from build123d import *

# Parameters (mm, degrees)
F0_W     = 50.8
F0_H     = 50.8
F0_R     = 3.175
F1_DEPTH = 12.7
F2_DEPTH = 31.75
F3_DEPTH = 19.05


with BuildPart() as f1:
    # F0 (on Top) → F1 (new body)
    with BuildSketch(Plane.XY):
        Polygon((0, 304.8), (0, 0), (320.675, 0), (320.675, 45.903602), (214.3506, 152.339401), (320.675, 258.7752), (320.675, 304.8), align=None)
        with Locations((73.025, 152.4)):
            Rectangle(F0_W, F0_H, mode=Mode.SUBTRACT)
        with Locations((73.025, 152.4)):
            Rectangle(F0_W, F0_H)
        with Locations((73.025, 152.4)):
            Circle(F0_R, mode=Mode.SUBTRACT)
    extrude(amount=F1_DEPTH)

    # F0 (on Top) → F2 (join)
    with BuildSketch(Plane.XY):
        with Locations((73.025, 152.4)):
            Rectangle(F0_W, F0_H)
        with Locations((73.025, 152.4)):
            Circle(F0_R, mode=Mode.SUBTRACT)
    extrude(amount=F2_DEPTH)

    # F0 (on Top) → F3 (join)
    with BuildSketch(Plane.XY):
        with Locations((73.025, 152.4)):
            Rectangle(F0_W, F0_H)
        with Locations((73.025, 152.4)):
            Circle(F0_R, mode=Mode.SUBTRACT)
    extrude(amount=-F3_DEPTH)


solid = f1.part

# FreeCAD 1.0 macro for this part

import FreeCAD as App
import Part
import Sketcher
from FreeCAD import Vector
Q = App.Units.Quantity

doc = App.newDocument("Part")
params = doc.addObject("Spreadsheet::Sheet", "Params")
for row, (alias, value) in enumerate([
    ("sketch1_diameter", "0.25 in"),
    ("sketch1_height", "12 in"),
    ("sketch1_width", "12.625 in"),
    ("sketch1_height2", "1.812 in"),
    ("sketch1_length", "5.923 in"),
    ("pad1_length", "0.5 in"),
    ("sketch2_diameter", "0.25 in"),
    ("sketch2_width", "2 in"),
    ("pad2_length", "1.25 in"),
    ("sketch3_diameter", "0.25 in"),
    ("sketch3_width", "2 in"),
    ("pad3_length", "0.75 in"),
], start=1):
    params.set(f"A{row}", alias)
    params.set(f"B{row}", "=" + value)
    params.setAlias(f"B{row}", alias)

body = doc.addObject("PartDesign::Body", "Body")

# Sketch on XY plane
sketch1 = body.newObject("Sketcher::SketchObject", "Sketch")
sketch1.AttachmentSupport = (doc.getObject("XY_Plane"), [""])
sketch1.MapMode = "FlatFace"
sketch1.addGeometry([
    Part.LineSegment(Vector(0, 304.8, 0), Vector(0, 0, 0)),  # 0
    Part.LineSegment(Vector(0, 0, 0), Vector(320.675, 0, 0)),  # 1
    Part.LineSegment(Vector(320.675, 0, 0), Vector(320.675, 45.903602, 0)),  # 2
    Part.LineSegment(Vector(320.675, 45.903602, 0), Vector(214.3506, 152.339401, 0)),  # 3
    Part.LineSegment(Vector(214.3506, 152.339401, 0), Vector(320.675, 258.7752, 0)),  # 4
    Part.LineSegment(Vector(320.675, 258.7752, 0), Vector(320.675, 304.8, 0)),  # 5
    Part.LineSegment(Vector(320.675, 304.8, 0), Vector(0, 304.8, 0)),  # 6
    Part.Circle(Vector(73.025, 152.4, 0), Vector(0, 0, 1), 3.175),  # 7
], False)
sketch1.addConstraint([
    Sketcher.Constraint("Coincident", 0, 2, 1, 1),
    Sketcher.Constraint("Coincident", 1, 2, 2, 1),
    Sketcher.Constraint("Coincident", 2, 2, 3, 1),
    Sketcher.Constraint("Coincident", 3, 2, 4, 1),
    Sketcher.Constraint("Coincident", 4, 2, 5, 1),
    Sketcher.Constraint("Coincident", 5, 2, 6, 1),
    Sketcher.Constraint("Coincident", 6, 2, 0, 1),
    Sketcher.Constraint("Vertical", 0),
    Sketcher.Constraint("Horizontal", 1),
    Sketcher.Constraint("Vertical", 2),
    Sketcher.Constraint("Vertical", 5),
    Sketcher.Constraint("Horizontal", 6),
    Sketcher.Constraint("Coincident", 0, 2, -1, 1),
    Sketcher.Constraint("Vertical", 2, 2, 4, 2),
    Sketcher.Constraint("Equal", 3, 4),
    Sketcher.Constraint("Diameter", 7, Q("0.25 in")),
    Sketcher.Constraint("DistanceY", 0, 2, 0, 1, Q("12 in")),
    Sketcher.Constraint("DistanceY", -1, 1, 7, 3, Q("6 in")),
    Sketcher.Constraint("DistanceX", 1, 1, 1, 2, Q("12.625 in")),
    Sketcher.Constraint("DistanceY", 5, 1, 5, 2, Q("1.812 in")),
    Sketcher.Constraint("Angle", 3, Q("134.970001 deg")),
    Sketcher.Constraint("DistanceX", 7, 3, 1, 2, Q("9.75 in")),
    Sketcher.Constraint("Distance", 3, Q("5.923 in")),
])
sketch1.setExpression("Constraints[15]", "Params.sketch1_diameter")
sketch1.setExpression("Constraints[16]", "Params.sketch1_height")
sketch1.setExpression("Constraints[18]", "Params.sketch1_width")
sketch1.setExpression("Constraints[19]", "Params.sketch1_height2")
sketch1.setExpression("Constraints[22]", "Params.sketch1_length")
pad1 = body.newObject("PartDesign::Pad", "Pad")
pad1.Profile = sketch1
pad1.setExpression("Length", "Params.pad1_length")

# Sketch on XY plane
sketch2 = body.newObject("Sketcher::SketchObject", "Sketch001")
sketch2.AttachmentSupport = (doc.getObject("XY_Plane"), [""])
sketch2.MapMode = "FlatFace"
sketch2.addGeometry([
    Part.LineSegment(Vector(47.625, 177.8, 0), Vector(47.625, 127, 0)),  # 0
    Part.LineSegment(Vector(47.625, 127, 0), Vector(98.425, 127, 0)),  # 1
    Part.LineSegment(Vector(98.425, 127, 0), Vector(98.425, 177.8, 0)),  # 2
    Part.LineSegment(Vector(98.425, 177.8, 0), Vector(47.625, 177.8, 0)),  # 3
    Part.Circle(Vector(73.025, 152.4, 0), Vector(0, 0, 1), 3.175),  # 4
], False)
sketch2.addConstraint([
    Sketcher.Constraint("Coincident", 0, 2, 1, 1),
    Sketcher.Constraint("Coincident", 1, 2, 2, 1),
    Sketcher.Constraint("Coincident", 2, 2, 3, 1),
    Sketcher.Constraint("Coincident", 3, 2, 0, 1),
    Sketcher.Constraint("Vertical", 0),
    Sketcher.Constraint("Horizontal", 1),
    Sketcher.Constraint("Vertical", 2),
    Sketcher.Constraint("Horizontal", 3),
    Sketcher.Constraint("Equal", 3, 0),
    Sketcher.Constraint("Diameter", 4, Q("0.25 in")),
    Sketcher.Constraint("DistanceX", 1, 1, 1, 2, Q("2 in")),
    Sketcher.Constraint("DistanceY", -1, 1, 4, 3, Q("6 in")),
    Sketcher.Constraint("DistanceY", -1, 1, 0, 2, Q("5 in")),
    Sketcher.Constraint("DistanceX", 0, 2, 4, 3, Q("1 in")),
    Sketcher.Constraint("DistanceX", -1, 1, 4, 3, Q("2.875 in")),
])
sketch2.setExpression("Constraints[9]", "Params.sketch2_diameter")
sketch2.setExpression("Constraints[10]", "Params.sketch2_width")
pad2 = body.newObject("PartDesign::Pad", "Pad001")
pad2.Profile = sketch2
pad2.setExpression("Length", "Params.pad2_length")

# Sketch on XY plane
sketch3 = body.newObject("Sketcher::SketchObject", "Sketch002")
sketch3.AttachmentSupport = (doc.getObject("XY_Plane"), [""])
sketch3.MapMode = "FlatFace"
sketch3.addGeometry([
    Part.LineSegment(Vector(47.625, 177.8, 0), Vector(47.625, 127, 0)),  # 0
    Part.LineSegment(Vector(47.625, 127, 0), Vector(98.425, 127, 0)),  # 1
    Part.LineSegment(Vector(98.425, 127, 0), Vector(98.425, 177.8, 0)),  # 2
    Part.LineSegment(Vector(98.425, 177.8, 0), Vector(47.625, 177.8, 0)),  # 3
    Part.Circle(Vector(73.025, 152.4, 0), Vector(0, 0, 1), 3.175),  # 4
], False)
sketch3.addConstraint([
    Sketcher.Constraint("Coincident", 0, 2, 1, 1),
    Sketcher.Constraint("Coincident", 1, 2, 2, 1),
    Sketcher.Constraint("Coincident", 2, 2, 3, 1),
    Sketcher.Constraint("Coincident", 3, 2, 0, 1),
    Sketcher.Constraint("Vertical", 0),
    Sketcher.Constraint("Horizontal", 1),
    Sketcher.Constraint("Vertical", 2),
    Sketcher.Constraint("Horizontal", 3),
    Sketcher.Constraint("Equal", 3, 0),
    Sketcher.Constraint("Diameter", 4, Q("0.25 in")),
    Sketcher.Constraint("DistanceX", 1, 1, 1, 2, Q("2 in")),
    Sketcher.Constraint("DistanceY", -1, 1, 4, 3, Q("6 in")),
    Sketcher.Constraint("DistanceY", -1, 1, 0, 2, Q("5 in")),
    Sketcher.Constraint("DistanceX", 0, 2, 4, 3, Q("1 in")),
    Sketcher.Constraint("DistanceX", -1, 1, 4, 3, Q("2.875 in")),
])
sketch3.setExpression("Constraints[9]", "Params.sketch3_diameter")
sketch3.setExpression("Constraints[10]", "Params.sketch3_width")
pad3 = body.newObject("PartDesign::Pad", "Pad002")
pad3.Profile = sketch3
pad3.setExpression("Length", "Params.pad3_length")
pad3.Reversed = True

doc.recompute()
